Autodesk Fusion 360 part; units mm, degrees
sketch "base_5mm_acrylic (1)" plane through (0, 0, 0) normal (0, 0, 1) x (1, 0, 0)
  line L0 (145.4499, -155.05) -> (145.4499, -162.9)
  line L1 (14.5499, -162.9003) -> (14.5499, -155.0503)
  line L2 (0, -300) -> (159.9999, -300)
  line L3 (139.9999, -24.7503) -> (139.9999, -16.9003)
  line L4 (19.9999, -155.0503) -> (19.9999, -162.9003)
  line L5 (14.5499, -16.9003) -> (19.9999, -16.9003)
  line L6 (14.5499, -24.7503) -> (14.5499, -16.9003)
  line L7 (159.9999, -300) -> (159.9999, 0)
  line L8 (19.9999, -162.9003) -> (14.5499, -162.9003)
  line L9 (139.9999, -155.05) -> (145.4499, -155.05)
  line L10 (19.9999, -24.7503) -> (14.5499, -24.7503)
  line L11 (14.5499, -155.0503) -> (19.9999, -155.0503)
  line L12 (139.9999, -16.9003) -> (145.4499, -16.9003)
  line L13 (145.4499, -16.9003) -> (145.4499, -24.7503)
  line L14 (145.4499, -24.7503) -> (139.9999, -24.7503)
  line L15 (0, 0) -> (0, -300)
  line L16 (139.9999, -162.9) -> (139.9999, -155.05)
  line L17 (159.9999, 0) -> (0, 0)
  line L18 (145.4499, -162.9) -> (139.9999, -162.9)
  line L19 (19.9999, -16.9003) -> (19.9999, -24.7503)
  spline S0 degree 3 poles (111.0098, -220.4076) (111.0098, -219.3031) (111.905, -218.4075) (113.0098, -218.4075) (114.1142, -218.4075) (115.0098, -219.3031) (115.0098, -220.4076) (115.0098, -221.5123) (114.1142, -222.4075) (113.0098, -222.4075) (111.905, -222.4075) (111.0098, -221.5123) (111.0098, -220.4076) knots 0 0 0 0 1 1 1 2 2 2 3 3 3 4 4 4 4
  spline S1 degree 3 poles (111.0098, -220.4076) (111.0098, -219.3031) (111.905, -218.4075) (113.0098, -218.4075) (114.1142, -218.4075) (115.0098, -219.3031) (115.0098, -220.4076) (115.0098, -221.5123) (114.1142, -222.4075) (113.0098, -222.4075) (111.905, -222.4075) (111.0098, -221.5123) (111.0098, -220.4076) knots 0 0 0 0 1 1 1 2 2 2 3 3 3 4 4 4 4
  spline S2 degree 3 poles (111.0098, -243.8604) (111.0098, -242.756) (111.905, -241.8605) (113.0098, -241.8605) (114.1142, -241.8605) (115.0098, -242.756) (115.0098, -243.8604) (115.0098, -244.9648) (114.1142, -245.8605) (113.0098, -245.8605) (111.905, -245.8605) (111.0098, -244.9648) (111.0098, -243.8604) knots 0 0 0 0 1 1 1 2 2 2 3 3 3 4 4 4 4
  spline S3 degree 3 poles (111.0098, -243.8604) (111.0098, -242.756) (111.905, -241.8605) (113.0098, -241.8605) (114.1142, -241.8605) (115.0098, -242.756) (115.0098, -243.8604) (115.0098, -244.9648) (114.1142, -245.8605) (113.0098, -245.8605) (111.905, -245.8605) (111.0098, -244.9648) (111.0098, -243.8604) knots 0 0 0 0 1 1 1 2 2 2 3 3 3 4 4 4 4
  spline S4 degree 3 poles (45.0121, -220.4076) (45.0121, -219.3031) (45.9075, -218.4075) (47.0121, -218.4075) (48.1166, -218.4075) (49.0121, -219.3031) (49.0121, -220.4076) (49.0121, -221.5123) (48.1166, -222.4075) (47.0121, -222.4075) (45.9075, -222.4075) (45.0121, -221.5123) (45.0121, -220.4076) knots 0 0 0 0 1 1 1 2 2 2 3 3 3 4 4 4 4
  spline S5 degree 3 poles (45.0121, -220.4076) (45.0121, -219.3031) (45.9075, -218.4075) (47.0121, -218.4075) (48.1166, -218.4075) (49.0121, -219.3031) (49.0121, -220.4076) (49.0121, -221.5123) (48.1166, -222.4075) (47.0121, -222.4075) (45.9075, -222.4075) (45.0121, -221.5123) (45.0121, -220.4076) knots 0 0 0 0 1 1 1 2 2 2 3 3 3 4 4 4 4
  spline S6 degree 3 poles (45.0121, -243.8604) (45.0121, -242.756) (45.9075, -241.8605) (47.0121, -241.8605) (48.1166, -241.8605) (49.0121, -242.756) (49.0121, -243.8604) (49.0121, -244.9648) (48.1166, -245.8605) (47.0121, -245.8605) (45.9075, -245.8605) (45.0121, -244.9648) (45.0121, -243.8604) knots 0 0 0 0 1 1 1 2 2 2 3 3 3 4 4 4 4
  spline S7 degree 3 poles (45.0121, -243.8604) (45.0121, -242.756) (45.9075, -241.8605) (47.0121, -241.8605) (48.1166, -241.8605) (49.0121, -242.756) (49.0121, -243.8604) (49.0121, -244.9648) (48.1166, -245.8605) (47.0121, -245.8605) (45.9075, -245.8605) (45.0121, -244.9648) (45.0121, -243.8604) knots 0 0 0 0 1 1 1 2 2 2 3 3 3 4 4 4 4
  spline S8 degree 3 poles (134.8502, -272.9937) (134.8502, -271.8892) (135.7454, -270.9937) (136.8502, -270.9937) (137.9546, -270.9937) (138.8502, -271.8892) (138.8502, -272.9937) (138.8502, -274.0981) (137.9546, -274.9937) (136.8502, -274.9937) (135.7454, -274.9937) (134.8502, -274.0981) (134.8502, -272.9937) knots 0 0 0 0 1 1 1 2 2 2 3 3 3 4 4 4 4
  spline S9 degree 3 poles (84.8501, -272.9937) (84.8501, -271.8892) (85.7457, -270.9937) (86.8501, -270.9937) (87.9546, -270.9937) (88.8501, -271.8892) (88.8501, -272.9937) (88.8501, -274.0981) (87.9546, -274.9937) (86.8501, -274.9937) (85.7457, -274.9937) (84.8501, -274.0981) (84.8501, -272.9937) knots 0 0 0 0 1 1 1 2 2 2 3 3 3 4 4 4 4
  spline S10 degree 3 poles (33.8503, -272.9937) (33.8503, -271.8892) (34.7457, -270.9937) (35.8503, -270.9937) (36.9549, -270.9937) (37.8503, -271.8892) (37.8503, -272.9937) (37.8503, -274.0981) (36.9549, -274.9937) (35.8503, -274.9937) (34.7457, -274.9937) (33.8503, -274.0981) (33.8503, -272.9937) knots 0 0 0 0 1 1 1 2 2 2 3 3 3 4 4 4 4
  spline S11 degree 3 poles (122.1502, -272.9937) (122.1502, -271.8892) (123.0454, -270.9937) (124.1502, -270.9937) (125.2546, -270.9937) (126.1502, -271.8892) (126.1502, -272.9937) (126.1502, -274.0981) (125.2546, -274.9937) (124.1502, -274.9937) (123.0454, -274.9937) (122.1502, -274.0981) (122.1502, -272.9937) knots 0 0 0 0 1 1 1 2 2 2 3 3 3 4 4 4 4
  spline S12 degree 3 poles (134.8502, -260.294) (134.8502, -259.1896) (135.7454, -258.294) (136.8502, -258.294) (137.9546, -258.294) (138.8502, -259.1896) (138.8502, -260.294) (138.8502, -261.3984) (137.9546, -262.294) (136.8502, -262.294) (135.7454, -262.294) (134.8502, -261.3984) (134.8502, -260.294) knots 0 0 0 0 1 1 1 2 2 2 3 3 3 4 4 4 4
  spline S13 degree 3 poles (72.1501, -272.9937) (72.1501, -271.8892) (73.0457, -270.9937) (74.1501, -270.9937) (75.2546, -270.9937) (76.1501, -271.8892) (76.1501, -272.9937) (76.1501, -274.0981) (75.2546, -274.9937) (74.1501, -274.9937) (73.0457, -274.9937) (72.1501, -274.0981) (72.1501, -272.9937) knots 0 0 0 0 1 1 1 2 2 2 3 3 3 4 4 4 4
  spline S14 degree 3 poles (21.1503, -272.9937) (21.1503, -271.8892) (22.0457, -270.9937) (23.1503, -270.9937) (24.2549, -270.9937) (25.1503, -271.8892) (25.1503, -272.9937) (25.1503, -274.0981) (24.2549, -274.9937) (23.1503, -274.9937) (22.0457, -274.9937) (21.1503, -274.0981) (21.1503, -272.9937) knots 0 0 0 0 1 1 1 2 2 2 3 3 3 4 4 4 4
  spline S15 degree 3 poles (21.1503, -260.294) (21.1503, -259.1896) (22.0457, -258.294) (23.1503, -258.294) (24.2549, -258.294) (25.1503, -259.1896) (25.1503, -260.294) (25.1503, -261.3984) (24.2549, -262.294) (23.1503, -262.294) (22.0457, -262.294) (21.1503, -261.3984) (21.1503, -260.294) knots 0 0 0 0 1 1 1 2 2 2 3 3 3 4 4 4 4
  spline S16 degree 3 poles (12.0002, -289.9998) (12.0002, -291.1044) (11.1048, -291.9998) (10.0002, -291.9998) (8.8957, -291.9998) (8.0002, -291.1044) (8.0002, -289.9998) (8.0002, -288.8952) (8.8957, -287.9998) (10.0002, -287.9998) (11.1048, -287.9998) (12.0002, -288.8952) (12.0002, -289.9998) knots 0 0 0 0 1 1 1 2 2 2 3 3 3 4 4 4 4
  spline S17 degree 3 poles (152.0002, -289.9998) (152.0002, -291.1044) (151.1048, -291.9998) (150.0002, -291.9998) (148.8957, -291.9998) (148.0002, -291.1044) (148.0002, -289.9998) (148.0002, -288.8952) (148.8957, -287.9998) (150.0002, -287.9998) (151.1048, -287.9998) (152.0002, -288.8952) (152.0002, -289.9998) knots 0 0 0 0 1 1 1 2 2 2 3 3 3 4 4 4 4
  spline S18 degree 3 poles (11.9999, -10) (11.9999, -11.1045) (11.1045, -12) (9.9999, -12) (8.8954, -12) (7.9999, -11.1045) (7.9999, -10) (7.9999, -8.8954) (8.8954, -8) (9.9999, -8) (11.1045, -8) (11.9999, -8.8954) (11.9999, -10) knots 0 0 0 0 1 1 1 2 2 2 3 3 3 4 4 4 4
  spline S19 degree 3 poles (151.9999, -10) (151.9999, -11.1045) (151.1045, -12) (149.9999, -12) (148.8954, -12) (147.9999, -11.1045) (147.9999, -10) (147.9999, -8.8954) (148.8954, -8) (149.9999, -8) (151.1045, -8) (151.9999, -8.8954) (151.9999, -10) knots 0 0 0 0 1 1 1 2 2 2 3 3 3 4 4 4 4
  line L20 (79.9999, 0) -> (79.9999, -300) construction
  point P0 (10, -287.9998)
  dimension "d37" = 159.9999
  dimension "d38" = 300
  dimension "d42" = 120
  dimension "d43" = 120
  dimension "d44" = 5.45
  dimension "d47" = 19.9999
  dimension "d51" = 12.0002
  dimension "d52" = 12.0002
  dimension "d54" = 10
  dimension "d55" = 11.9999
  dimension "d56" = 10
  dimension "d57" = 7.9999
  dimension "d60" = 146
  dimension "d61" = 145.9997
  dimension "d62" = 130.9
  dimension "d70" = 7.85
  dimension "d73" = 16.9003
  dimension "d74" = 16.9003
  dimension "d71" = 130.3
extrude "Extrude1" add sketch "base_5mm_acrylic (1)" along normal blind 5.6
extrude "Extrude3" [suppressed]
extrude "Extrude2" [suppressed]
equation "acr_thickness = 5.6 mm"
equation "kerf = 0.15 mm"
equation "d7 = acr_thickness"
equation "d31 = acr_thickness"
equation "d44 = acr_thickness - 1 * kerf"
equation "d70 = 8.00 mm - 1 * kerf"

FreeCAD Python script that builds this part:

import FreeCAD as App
import Part
import Sketcher
from FreeCAD import Vector


def add_polygon(sketch, points):
    """Adds a closed chain of lines whose ends are joined by coincident constraints."""
    first, n = sketch.GeometryCount, len(points)
    for a, b in zip(points, points[1:] + points[:1]):
        sketch.addGeometry(Part.LineSegment(App.Vector(*a, 0), App.Vector(*b, 0)), False)
    for i in range(n):
        sketch.addConstraint(Sketcher.Constraint("Coincident", first + i, 2, first + (i + 1) % n, 1))

doc = App.newDocument("Part")
params = doc.addObject("Spreadsheet::Sheet", "Params")
for row, (alias, value) in enumerate([
    ("sketch1_width", "160 mm"),
    ("sketch1_height", "300 mm"),
    ("sketch1_width2", "5.45 mm"),
    ("sketch1_height2", "7.85 mm"),
    ("pad1_length", "5.6 mm"),
], start=1):
    params.set(f"A{row}", alias)
    params.set(f"B{row}", "=" + value)
    params.setAlias(f"B{row}", alias)

body = doc.addObject("PartDesign::Body", "Body")

# Sketch on XY plane
sketch1 = body.newObject("Sketcher::SketchObject", "Sketch")
sketch1.AttachmentSupport = (doc.getObject("XY_Plane"), [""])
sketch1.MapMode = "FlatFace"
add_polygon(sketch1, [(0, 0), (0, -300), (159.9999, -300), (159.9999, 0)])  # lines 0-3
sketch1.addGeometry(Part.BSplineCurve([Vector(12.0002, -289.9998, 0), Vector(12.0002, -291.1044, 0), Vector(11.1048, -291.9998, 0), Vector(10.0002, -291.9998, 0), Vector(8.8957, -291.9998, 0), Vector(8.0002, -291.1044, 0), Vector(8.0002, -289.9998, 0), Vector(8.0002, -288.8952, 0), Vector(8.8957, -287.9998, 0), Vector(10.0002, -287.9998, 0), Vector(11.1048, -287.9998, 0), Vector(12.0002, -288.8952, 0), Vector(12.0002, -289.9998, 0)], [4, 3, 3, 3, 4], [0, 1, 2, 3, 4], False, 3, [1, 1, 1, 1, 1, 1, 1, 1, 1, 1, 1, 1, 1], False), False)  # 4
sketch1.addGeometry(Part.BSplineCurve([Vector(21.1503, -272.9937, 0), Vector(21.1503, -271.8892, 0), Vector(22.0457, -270.9937, 0), Vector(23.1503, -270.9937, 0), Vector(24.2549, -270.9937, 0), Vector(25.1503, -271.8892, 0), Vector(25.1503, -272.9937, 0), Vector(25.1503, -274.0981, 0), Vector(24.2549, -274.9937, 0), Vector(23.1503, -274.9937, 0), Vector(22.0457, -274.9937, 0), Vector(21.1503, -274.0981, 0), Vector(21.1503, -272.9937, 0)], [4, 3, 3, 3, 4], [0, 1, 2, 3, 4], False, 3, [1, 1, 1, 1, 1, 1, 1, 1, 1, 1, 1, 1, 1], False), False)  # 5
sketch1.addGeometry(Part.BSplineCurve([Vector(33.8503, -272.9937, 0), Vector(33.8503, -271.8892, 0), Vector(34.7457, -270.9937, 0), Vector(35.8503, -270.9937, 0), Vector(36.9549, -270.9937, 0), Vector(37.8503, -271.8892, 0), Vector(37.8503, -272.9937, 0), Vector(37.8503, -274.0981, 0), Vector(36.9549, -274.9937, 0), Vector(35.8503, -274.9937, 0), Vector(34.7457, -274.9937, 0), Vector(33.8503, -274.0981, 0), Vector(33.8503, -272.9937, 0)], [4, 3, 3, 3, 4], [0, 1, 2, 3, 4], False, 3, [1, 1, 1, 1, 1, 1, 1, 1, 1, 1, 1, 1, 1], False), False)  # 6
sketch1.addGeometry(Part.BSplineCurve([Vector(21.1503, -260.294, 0), Vector(21.1503, -259.1896, 0), Vector(22.0457, -258.294, 0), Vector(23.1503, -258.294, 0), Vector(24.2549, -258.294, 0), Vector(25.1503, -259.1896, 0), Vector(25.1503, -260.294, 0), Vector(25.1503, -261.3984, 0), Vector(24.2549, -262.294, 0), Vector(23.1503, -262.294, 0), Vector(22.0457, -262.294, 0), Vector(21.1503, -261.3984, 0), Vector(21.1503, -260.294, 0)], [4, 3, 3, 3, 4], [0, 1, 2, 3, 4], False, 3, [1, 1, 1, 1, 1, 1, 1, 1, 1, 1, 1, 1, 1], False), False)  # 7
sketch1.addGeometry(Part.BSplineCurve([Vector(72.1501, -272.9937, 0), Vector(72.1501, -271.8892, 0), Vector(73.0457, -270.9937, 0), Vector(74.1501, -270.9937, 0), Vector(75.2546, -270.9937, 0), Vector(76.1501, -271.8892, 0), Vector(76.1501, -272.9937, 0), Vector(76.1501, -274.0981, 0), Vector(75.2546, -274.9937, 0), Vector(74.1501, -274.9937, 0), Vector(73.0457, -274.9937, 0), Vector(72.1501, -274.0981, 0), Vector(72.1501, -272.9937, 0)], [4, 3, 3, 3, 4], [0, 1, 2, 3, 4], False, 3, [1, 1, 1, 1, 1, 1, 1, 1, 1, 1, 1, 1, 1], False), False)  # 8
sketch1.addGeometry(Part.BSplineCurve([Vector(45.0121, -243.8604, 0), Vector(45.0121, -242.756, 0), Vector(45.9075, -241.8605, 0), Vector(47.0121, -241.8605, 0), Vector(48.1166, -241.8605, 0), Vector(49.0121, -242.756, 0), Vector(49.0121, -243.8604, 0), Vector(49.0121, -244.9648, 0), Vector(48.1166, -245.8605, 0), Vector(47.0121, -245.8605, 0), Vector(45.9075, -245.8605, 0), Vector(45.0121, -244.9648, 0), Vector(45.0121, -243.8604, 0)], [4, 3, 3, 3, 4], [0, 1, 2, 3, 4], False, 3, [1, 1, 1, 1, 1, 1, 1, 1, 1, 1, 1, 1, 1], False), False)  # 9
add_polygon(sketch1, [(19.9999, -162.9003), (14.5499, -162.9003), (14.5499, -155.0503), (19.9999, -155.0503)])  # lines 10-13
sketch1.addGeometry(Part.BSplineCurve([Vector(45.0121, -220.4076, 0), Vector(45.0121, -219.3031, 0), Vector(45.9075, -218.4075, 0), Vector(47.0121, -218.4075, 0), Vector(48.1166, -218.4075, 0), Vector(49.0121, -219.3031, 0), Vector(49.0121, -220.4076, 0), Vector(49.0121, -221.5123, 0), Vector(48.1166, -222.4075, 0), Vector(47.0121, -222.4075, 0), Vector(45.9075, -222.4075, 0), Vector(45.0121, -221.5123, 0), Vector(45.0121, -220.4076, 0)], [4, 3, 3, 3, 4], [0, 1, 2, 3, 4], False, 3, [1, 1, 1, 1, 1, 1, 1, 1, 1, 1, 1, 1, 1], False), False)  # 14
sketch1.addGeometry(Part.BSplineCurve([Vector(84.8501, -272.9937, 0), Vector(84.8501, -271.8892, 0), Vector(85.7457, -270.9937, 0), Vector(86.8501, -270.9937, 0), Vector(87.9546, -270.9937, 0), Vector(88.8501, -271.8892, 0), Vector(88.8501, -272.9937, 0), Vector(88.8501, -274.0981, 0), Vector(87.9546, -274.9937, 0), Vector(86.8501, -274.9937, 0), Vector(85.7457, -274.9937, 0), Vector(84.8501, -274.0981, 0), Vector(84.8501, -272.9937, 0)], [4, 3, 3, 3, 4], [0, 1, 2, 3, 4], False, 3, [1, 1, 1, 1, 1, 1, 1, 1, 1, 1, 1, 1, 1], False), False)  # 15
sketch1.addGeometry(Part.BSplineCurve([Vector(111.0098, -243.8604, 0), Vector(111.0098, -242.756, 0), Vector(111.905, -241.8605, 0), Vector(113.0098, -241.8605, 0), Vector(114.1142, -241.8605, 0), Vector(115.0098, -242.756, 0), Vector(115.0098, -243.8604, 0), Vector(115.0098, -244.9648, 0), Vector(114.1142, -245.8605, 0), Vector(113.0098, -245.8605, 0), Vector(111.905, -245.8605, 0), Vector(111.0098, -244.9648, 0), Vector(111.0098, -243.8604, 0)], [4, 3, 3, 3, 4], [0, 1, 2, 3, 4], False, 3, [1, 1, 1, 1, 1, 1, 1, 1, 1, 1, 1, 1, 1], False), False)  # 16
sketch1.addGeometry(Part.BSplineCurve([Vector(122.1502, -272.9937, 0), Vector(122.1502, -271.8892, 0), Vector(123.0454, -270.9937, 0), Vector(124.1502, -270.9937, 0), Vector(125.2546, -270.9937, 0), Vector(126.1502, -271.8892, 0), Vector(126.1502, -272.9937, 0), Vector(126.1502, -274.0981, 0), Vector(125.2546, -274.9937, 0), Vector(124.1502, -274.9937, 0), Vector(123.0454, -274.9937, 0), Vector(122.1502, -274.0981, 0), Vector(122.1502, -272.9937, 0)], [4, 3, 3, 3, 4], [0, 1, 2, 3, 4], False, 3, [1, 1, 1, 1, 1, 1, 1, 1, 1, 1, 1, 1, 1], False), False)  # 17
sketch1.addGeometry(Part.BSplineCurve([Vector(134.8502, -272.9937, 0), Vector(134.8502, -271.8892, 0), Vector(135.7454, -270.9937, 0), Vector(136.8502, -270.9937, 0), Vector(137.9546, -270.9937, 0), Vector(138.8502, -271.8892, 0), Vector(138.8502, -272.9937, 0), Vector(138.8502, -274.0981, 0), Vector(137.9546, -274.9937, 0), Vector(136.8502, -274.9937, 0), Vector(135.7454, -274.9937, 0), Vector(134.8502, -274.0981, 0), Vector(134.8502, -272.9937, 0)], [4, 3, 3, 3, 4], [0, 1, 2, 3, 4], False, 3, [1, 1, 1, 1, 1, 1, 1, 1, 1, 1, 1, 1, 1], False), False)  # 18
sketch1.addGeometry(Part.BSplineCurve([Vector(152.0002, -289.9998, 0), Vector(152.0002, -291.1044, 0), Vector(151.1048, -291.9998, 0), Vector(150.0002, -291.9998, 0), Vector(148.8957, -291.9998, 0), Vector(148.0002, -291.1044, 0), Vector(148.0002, -289.9998, 0), Vector(148.0002, -288.8952, 0), Vector(148.8957, -287.9998, 0), Vector(150.0002, -287.9998, 0), Vector(151.1048, -287.9998, 0), Vector(152.0002, -288.8952, 0), Vector(152.0002, -289.9998, 0)], [4, 3, 3, 3, 4], [0, 1, 2, 3, 4], False, 3, [1, 1, 1, 1, 1, 1, 1, 1, 1, 1, 1, 1, 1], False), False)  # 19
sketch1.addGeometry(Part.BSplineCurve([Vector(134.8502, -260.294, 0), Vector(134.8502, -259.1896, 0), Vector(135.7454, -258.294, 0), Vector(136.8502, -258.294, 0), Vector(137.9546, -258.294, 0), Vector(138.8502, -259.1896, 0), Vector(138.8502, -260.294, 0), Vector(138.8502, -261.3984, 0), Vector(137.9546, -262.294, 0), Vector(136.8502, -262.294, 0), Vector(135.7454, -262.294, 0), Vector(134.8502, -261.3984, 0), Vector(134.8502, -260.294, 0)], [4, 3, 3, 3, 4], [0, 1, 2, 3, 4], False, 3, [1, 1, 1, 1, 1, 1, 1, 1, 1, 1, 1, 1, 1], False), False)  # 20
sketch1.addGeometry(Part.BSplineCurve([Vector(111.0098, -220.4076, 0), Vector(111.0098, -219.3031, 0), Vector(111.905, -218.4075, 0), Vector(113.0098, -218.4075, 0), Vector(114.1142, -218.4075, 0), Vector(115.0098, -219.3031, 0), Vector(115.0098, -220.4076, 0), Vector(115.0098, -221.5123, 0), Vector(114.1142, -222.4075, 0), Vector(113.0098, -222.4075, 0), Vector(111.905, -222.4075, 0), Vector(111.0098, -221.5123, 0), Vector(111.0098, -220.4076, 0)], [4, 3, 3, 3, 4], [0, 1, 2, 3, 4], False, 3, [1, 1, 1, 1, 1, 1, 1, 1, 1, 1, 1, 1, 1], False), False)  # 21
add_polygon(sketch1, [(139.9999, -155.05), (145.4499, -155.05), (145.4499, -162.9), (139.9999, -162.9)])  # lines 22-25
add_polygon(sketch1, [(14.5499, -24.7503), (14.5499, -16.9003), (19.9999, -16.9003), (19.9999, -24.7503)])  # lines 26-29
sketch1.addGeometry(Part.BSplineCurve([Vector(11.9999, -10, 0), Vector(11.9999, -11.1045, 0), Vector(11.1045, -12, 0), Vector(9.9999, -12, 0), Vector(8.8954, -12, 0), Vector(7.9999, -11.1045, 0), Vector(7.9999, -10, 0), Vector(7.9999, -8.8954, 0), Vector(8.8954, -8, 0), Vector(9.9999, -8, 0), Vector(11.1045, -8, 0), Vector(11.9999, -8.8954, 0), Vector(11.9999, -10, 0)], [4, 3, 3, 3, 4], [0, 1, 2, 3, 4], False, 3, [1, 1, 1, 1, 1, 1, 1, 1, 1, 1, 1, 1, 1], False), False)  # 30
add_polygon(sketch1, [(145.4499, -24.7503), (139.9999, -24.7503), (139.9999, -16.9003), (145.4499, -16.9003)])  # lines 31-34
sketch1.addGeometry(Part.BSplineCurve([Vector(151.9999, -10, 0), Vector(151.9999, -11.1045, 0), Vector(151.1045, -12, 0), Vector(149.9999, -12, 0), Vector(148.8954, -12, 0), Vector(147.9999, -11.1045, 0), Vector(147.9999, -10, 0), Vector(147.9999, -8.8954, 0), Vector(148.8954, -8, 0), Vector(149.9999, -8, 0), Vector(151.1045, -8, 0), Vector(151.9999, -8.8954, 0), Vector(151.9999, -10, 0)], [4, 3, 3, 3, 4], [0, 1, 2, 3, 4], False, 3, [1, 1, 1, 1, 1, 1, 1, 1, 1, 1, 1, 1, 1], False), False)  # 35
sketch1.addConstraint([
    Sketcher.Constraint("Block", 4),
    Sketcher.Constraint("Block", 5),
    Sketcher.Constraint("Block", 6),
    Sketcher.Constraint("Block", 7),
    Sketcher.Constraint("Block", 8),
    Sketcher.Constraint("Block", 9),
    Sketcher.Constraint("Block", 14),
    Sketcher.Constraint("Block", 15),
    Sketcher.Constraint("Block", 16),
    Sketcher.Constraint("Block", 17),
    Sketcher.Constraint("Block", 18),
    Sketcher.Constraint("Block", 19),
    Sketcher.Constraint("Block", 20),
    Sketcher.Constraint("Block", 21),
    Sketcher.Constraint("Block", 30),
    Sketcher.Constraint("Block", 35),
    Sketcher.Constraint("Vertical", 0),
    Sketcher.Constraint("Horizontal", 1),
    Sketcher.Constraint("Vertical", 2),
    Sketcher.Constraint("Horizontal", 3),
    Sketcher.Constraint("Horizontal", 10),
    Sketcher.Constraint("Vertical", 11),
    Sketcher.Constraint("Horizontal", 12),
    Sketcher.Constraint("Vertical", 13),
    Sketcher.Constraint("Horizontal", 22),
    Sketcher.Constraint("Vertical", 23),
    Sketcher.Constraint("Horizontal", 24),
    Sketcher.Constraint("Vertical", 25),
    Sketcher.Constraint("Vertical", 26),
    Sketcher.Constraint("Horizontal", 27),
    Sketcher.Constraint("Vertical", 28),
    Sketcher.Constraint("Horizontal", 29),
    Sketcher.Constraint("Horizontal", 31),
    Sketcher.Constraint("Vertical", 32),
    Sketcher.Constraint("Horizontal", 33),
    Sketcher.Constraint("Vertical", 34),
    Sketcher.Constraint("Coincident", 3, 2, -1, 1),
    Sketcher.Constraint("Horizontal", 29, 2, 31, 2),
    Sketcher.Constraint("Horizontal", 27, 2, 32, 2),
    Sketcher.Constraint("Vertical", 11, 2, 26, 2),
    Sketcher.Constraint("Vertical", 13, 2, 27, 2),
    Sketcher.Constraint("Vertical", 25, 2, 31, 2),
    Sketcher.Constraint("Vertical", 23, 2, 33, 2),
    Sketcher.Constraint("Equal", 12, 22),
    Sketcher.Constraint("Equal", 13, 23),
    Sketcher.Constraint("Equal", 25, 26),
    Sketcher.Constraint("DistanceX", 1, 1, 1, 2, 160.0),
    Sketcher.Constraint("DistanceY", 0, 2, 0, 1, 300.0),
    Sketcher.Constraint("DistanceX", -1, 1, 12, 2, 20.0),
    Sketcher.Constraint("DistanceX", 13, 2, 24, 2, 120.0),
    Sketcher.Constraint("DistanceY", 10, 2, 26, 2, 146.0),
    Sketcher.Constraint("DistanceX", 10, 2, 10, 1, 5.45),
    Sketcher.Constraint("DistanceY", 11, 1, 11, 2, 7.85),
    Sketcher.Constraint("DistanceY", 26, 2, -1, 1, 16.9003),
    Sketcher.Constraint("DistanceY", 23, 2, -1, 1, 162.9),
])
sketch1.setExpression("Constraints[66]", "Params.sketch1_width")
sketch1.setExpression("Constraints[67]", "Params.sketch1_height")
sketch1.setExpression("Constraints[71]", "Params.sketch1_width2")
sketch1.setExpression("Constraints[72]", "Params.sketch1_height2")
pad1 = body.newObject("PartDesign::Pad", "Pad")
pad1.Profile = sketch1
pad1.setExpression("Length", "Params.pad1_length")

doc.recompute()
